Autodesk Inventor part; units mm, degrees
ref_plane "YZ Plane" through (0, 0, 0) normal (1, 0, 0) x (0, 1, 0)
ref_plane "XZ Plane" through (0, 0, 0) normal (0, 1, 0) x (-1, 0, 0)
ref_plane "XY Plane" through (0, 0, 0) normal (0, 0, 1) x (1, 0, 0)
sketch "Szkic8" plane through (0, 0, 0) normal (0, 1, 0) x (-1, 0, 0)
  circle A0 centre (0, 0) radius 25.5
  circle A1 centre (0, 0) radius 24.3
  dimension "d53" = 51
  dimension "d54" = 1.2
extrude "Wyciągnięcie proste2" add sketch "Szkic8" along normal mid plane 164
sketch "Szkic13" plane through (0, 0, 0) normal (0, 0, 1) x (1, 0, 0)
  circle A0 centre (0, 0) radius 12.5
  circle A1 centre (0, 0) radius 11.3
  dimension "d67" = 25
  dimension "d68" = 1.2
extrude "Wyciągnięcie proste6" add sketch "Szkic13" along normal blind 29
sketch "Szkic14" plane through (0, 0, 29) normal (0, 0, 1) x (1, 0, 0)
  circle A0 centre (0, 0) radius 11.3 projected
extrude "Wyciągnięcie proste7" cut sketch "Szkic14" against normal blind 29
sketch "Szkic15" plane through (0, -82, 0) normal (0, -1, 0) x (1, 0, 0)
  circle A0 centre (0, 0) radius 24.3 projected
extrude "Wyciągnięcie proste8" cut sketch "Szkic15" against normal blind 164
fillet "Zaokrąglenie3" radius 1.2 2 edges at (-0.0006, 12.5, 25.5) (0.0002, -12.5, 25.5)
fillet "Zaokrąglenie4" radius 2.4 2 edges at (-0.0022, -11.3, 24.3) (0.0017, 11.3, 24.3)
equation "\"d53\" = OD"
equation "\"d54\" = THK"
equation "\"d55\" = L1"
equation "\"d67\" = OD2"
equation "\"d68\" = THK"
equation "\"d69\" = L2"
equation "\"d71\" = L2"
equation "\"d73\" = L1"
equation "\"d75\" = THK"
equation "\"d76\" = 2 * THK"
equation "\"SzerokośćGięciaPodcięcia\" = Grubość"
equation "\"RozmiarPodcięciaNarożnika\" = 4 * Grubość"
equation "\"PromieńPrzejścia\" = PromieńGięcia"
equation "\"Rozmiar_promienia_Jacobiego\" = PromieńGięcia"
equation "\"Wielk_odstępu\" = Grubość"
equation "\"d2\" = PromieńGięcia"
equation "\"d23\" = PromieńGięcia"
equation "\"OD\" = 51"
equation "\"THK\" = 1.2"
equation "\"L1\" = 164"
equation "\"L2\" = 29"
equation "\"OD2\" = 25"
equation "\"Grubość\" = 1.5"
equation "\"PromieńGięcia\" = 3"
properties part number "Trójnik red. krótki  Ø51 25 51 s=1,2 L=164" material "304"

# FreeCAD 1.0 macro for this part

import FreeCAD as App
import Part
import Sketcher
from FreeCAD import Vector


def edges_at(feature, points):
    """Names of the edges that pass closest to the given points."""
    edges = feature.Shape.Edges
    near = lambda p: min(range(len(edges)), key=lambda i: edges[i].distToShape(Part.Vertex(*p))[0])
    return sorted({f"Edge{near(p) + 1}" for p in points})

doc = App.newDocument("Part")
body = doc.addObject("PartDesign::Body", "Body")

sketch1 = body.newObject("Sketcher::SketchObject", "Sketch")
sketch1.AttachmentSupport = (doc.getObject("XZ_Plane"), [""])
sketch1.MapMode = "FlatFace"
sketch1.addGeometry(Part.Circle(Vector(0, 0, 0), Vector(0, 0, 1), 25.5), False)
sketch1.addGeometry(Part.Circle(Vector(0, 0, 0), Vector(0, 0, 1), 24.3), False)
sketch1.addConstraint(Sketcher.Constraint("Coincident", 0, 3, -1, 1))
sketch1.addConstraint(Sketcher.Constraint("Coincident", 1, 3, -1, 1))
sketch1.addConstraint(Sketcher.Constraint("Diameter", 0, 51.0))
sketch1.addConstraint(Sketcher.Constraint("Diameter", 1, 48.6))
pad1 = body.newObject("PartDesign::Pad", "Pad")
pad1.Profile = sketch1
pad1.Length = 164
pad1.Midplane = True

sketch2 = body.newObject("Sketcher::SketchObject", "Sketch001")
sketch2.AttachmentSupport = (doc.getObject("XY_Plane"), [""])
sketch2.MapMode = "FlatFace"
sketch2.addGeometry(Part.Circle(Vector(0, 0, 0), Vector(0, 0, 1), 12.5), False)
sketch2.addGeometry(Part.Circle(Vector(0, 0, 0), Vector(0, 0, 1), 11.3), False)
sketch2.addConstraint(Sketcher.Constraint("Coincident", 0, 3, -1, 1))
sketch2.addConstraint(Sketcher.Constraint("Coincident", 1, 3, -1, 1))
sketch2.addConstraint(Sketcher.Constraint("Diameter", 0, 25.0))
sketch2.addConstraint(Sketcher.Constraint("Diameter", 1, 22.6))
pad2 = body.newObject("PartDesign::Pad", "Pad001")
pad2.Profile = sketch2
pad2.Length = 29

sketch3 = body.newObject("Sketcher::SketchObject", "Sketch002")
sketch3.AttachmentSupport = (doc.getObject("XY_Plane"), [""])
sketch3.MapMode = "FlatFace"
sketch3.AttachmentOffset = App.Placement(Vector(0, 0, 29), App.Rotation())
sketch3.addGeometry(Part.Circle(Vector(0, 0, 0), Vector(0, 0, 1), 11.3), False)
sketch3.addConstraint(Sketcher.Constraint("Coincident", 0, 3, -1, 1))
sketch3.addConstraint(Sketcher.Constraint("Diameter", 0, 22.6))
pocket1 = body.newObject("PartDesign::Pocket", "Pocket")
pocket1.Profile = sketch3
pocket1.Length = 29

sketch4 = body.newObject("Sketcher::SketchObject", "Sketch003")
sketch4.AttachmentSupport = (doc.getObject("XZ_Plane"), [""])
sketch4.MapMode = "FlatFace"
sketch4.AttachmentOffset = App.Placement(Vector(0, 0, 82), App.Rotation())
sketch4.addGeometry(Part.Circle(Vector(0, 0, 0), Vector(0, 0, 1), 24.3), False)
sketch4.addConstraint(Sketcher.Constraint("Coincident", 0, 3, -1, 1))
sketch4.addConstraint(Sketcher.Constraint("Diameter", 0, 48.6))
pocket2 = body.newObject("PartDesign::Pocket", "Pocket001")
pocket2.Profile = sketch4
pocket2.Length = 164
doc.recompute()

fillet = body.newObject("PartDesign::Fillet", "Fillet")
fillet.Base = (pocket2, edges_at(pocket2, [(-0.001, 12.5, 25.5), (0, -12.5, 25.5)]))
fillet.Radius = 1.2
doc.recompute()

fillet2 = body.newObject("PartDesign::Fillet", "Fillet001")
fillet2.Base = (fillet, edges_at(fillet, [(-0.002, -11.3, 24.3), (0.002, 11.3, 24.3)]))
fillet2.Radius = 2.4

doc.recompute()
